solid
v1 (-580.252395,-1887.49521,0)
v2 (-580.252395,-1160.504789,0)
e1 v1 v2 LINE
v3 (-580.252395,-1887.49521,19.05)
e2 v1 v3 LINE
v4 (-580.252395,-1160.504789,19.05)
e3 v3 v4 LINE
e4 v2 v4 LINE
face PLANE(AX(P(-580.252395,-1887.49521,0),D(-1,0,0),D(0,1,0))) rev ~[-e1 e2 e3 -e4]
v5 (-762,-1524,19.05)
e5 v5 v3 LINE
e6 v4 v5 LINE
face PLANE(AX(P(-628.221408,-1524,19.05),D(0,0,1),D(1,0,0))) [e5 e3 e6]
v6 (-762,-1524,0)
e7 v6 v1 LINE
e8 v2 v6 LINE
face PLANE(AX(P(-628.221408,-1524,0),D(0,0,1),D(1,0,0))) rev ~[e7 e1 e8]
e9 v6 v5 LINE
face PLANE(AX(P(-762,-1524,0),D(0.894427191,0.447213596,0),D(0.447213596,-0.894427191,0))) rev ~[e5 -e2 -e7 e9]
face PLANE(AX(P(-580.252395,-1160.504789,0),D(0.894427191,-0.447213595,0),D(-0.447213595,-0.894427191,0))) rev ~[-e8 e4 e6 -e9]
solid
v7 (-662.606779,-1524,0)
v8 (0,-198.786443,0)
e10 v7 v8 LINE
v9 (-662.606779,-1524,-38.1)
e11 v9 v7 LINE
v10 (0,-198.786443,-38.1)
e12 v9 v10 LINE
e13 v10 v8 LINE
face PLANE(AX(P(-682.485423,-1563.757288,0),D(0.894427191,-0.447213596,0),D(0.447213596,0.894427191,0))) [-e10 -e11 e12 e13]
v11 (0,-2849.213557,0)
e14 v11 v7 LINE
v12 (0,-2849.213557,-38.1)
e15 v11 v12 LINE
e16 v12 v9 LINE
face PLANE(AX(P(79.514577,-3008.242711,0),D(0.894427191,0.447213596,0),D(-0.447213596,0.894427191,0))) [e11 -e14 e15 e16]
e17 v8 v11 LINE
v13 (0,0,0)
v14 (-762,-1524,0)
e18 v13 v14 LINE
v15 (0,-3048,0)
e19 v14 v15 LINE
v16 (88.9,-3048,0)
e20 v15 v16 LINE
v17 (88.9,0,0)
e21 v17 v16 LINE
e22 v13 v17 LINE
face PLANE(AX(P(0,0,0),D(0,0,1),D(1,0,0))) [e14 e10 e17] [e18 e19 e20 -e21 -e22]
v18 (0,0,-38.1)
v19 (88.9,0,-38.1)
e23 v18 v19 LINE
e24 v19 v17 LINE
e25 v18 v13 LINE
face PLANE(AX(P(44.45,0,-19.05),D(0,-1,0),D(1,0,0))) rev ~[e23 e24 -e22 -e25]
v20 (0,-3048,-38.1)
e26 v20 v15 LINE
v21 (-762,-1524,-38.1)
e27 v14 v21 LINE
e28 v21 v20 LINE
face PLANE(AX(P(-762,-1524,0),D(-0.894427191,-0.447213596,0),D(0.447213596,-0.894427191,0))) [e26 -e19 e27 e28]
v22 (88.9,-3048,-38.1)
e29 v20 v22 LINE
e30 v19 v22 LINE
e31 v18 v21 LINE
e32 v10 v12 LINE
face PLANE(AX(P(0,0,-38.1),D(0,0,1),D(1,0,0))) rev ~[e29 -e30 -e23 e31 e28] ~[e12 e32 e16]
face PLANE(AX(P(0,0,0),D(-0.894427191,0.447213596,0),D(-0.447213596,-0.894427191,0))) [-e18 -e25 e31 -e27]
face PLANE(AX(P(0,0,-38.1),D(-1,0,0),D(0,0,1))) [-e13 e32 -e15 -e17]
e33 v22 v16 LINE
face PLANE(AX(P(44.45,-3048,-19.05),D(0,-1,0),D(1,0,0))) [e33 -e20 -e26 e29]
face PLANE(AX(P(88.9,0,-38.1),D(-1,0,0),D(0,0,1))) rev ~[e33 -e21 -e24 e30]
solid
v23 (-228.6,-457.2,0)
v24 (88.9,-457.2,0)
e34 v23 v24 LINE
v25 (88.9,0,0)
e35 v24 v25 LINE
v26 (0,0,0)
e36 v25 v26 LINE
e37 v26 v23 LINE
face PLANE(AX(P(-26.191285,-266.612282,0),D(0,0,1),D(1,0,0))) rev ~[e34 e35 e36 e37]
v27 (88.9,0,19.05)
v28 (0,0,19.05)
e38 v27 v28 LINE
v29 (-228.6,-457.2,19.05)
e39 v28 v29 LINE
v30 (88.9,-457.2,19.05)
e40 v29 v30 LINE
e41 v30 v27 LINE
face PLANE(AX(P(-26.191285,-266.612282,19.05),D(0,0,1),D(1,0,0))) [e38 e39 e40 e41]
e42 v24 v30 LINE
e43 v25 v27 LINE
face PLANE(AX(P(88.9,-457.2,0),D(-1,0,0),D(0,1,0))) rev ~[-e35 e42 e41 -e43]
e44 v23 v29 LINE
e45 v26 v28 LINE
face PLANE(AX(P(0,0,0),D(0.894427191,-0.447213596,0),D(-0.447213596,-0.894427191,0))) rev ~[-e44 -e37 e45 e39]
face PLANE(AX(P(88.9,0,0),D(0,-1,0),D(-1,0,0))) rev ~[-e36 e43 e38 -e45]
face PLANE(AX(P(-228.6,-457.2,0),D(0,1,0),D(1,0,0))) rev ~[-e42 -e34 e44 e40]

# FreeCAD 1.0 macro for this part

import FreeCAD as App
import Part
import Sketcher
from FreeCAD import Vector
Q = App.Units.Quantity


def add_polygon(sketch, points):
    """Adds a closed chain of lines whose ends are joined by coincident constraints."""
    first, n = sketch.GeometryCount, len(points)
    for a, b in zip(points, points[1:] + points[:1]):
        sketch.addGeometry(Part.LineSegment(App.Vector(*a, 0), App.Vector(*b, 0)), False)
    for i in range(n):
        sketch.addConstraint(Sketcher.Constraint("Coincident", first + i, 2, first + (i + 1) % n, 1))

doc = App.newDocument("Part")
params = doc.addObject("Spreadsheet::Sheet", "Params")
for row, (alias, value) in enumerate([
    ("sketch1_width", "3.5 in"),
    ("sketch1_height", "1.5 in"),
    ("pad1_length", "120 in"),
    ("sketch2_length", "3.5 in"),
    ("pad2_length", "1.5 in"),
    ("sketch3_length", "3.5 in"),
    ("pad3_length", "1.5 in"),
    ("sketch4_height", "18 in"),
    ("sketch4_width", "12.5 in"),
    ("sketch4_width2", "3.5 in"),
    ("pad4_length", "0.75 in"),
    ("sketch5_length", "16 in"),
    ("pad5_length", "0.75 in"),
], start=1):
    params.set(f"A{row}", alias)
    params.set(f"B{row}", "=" + value)
    params.setAlias(f"B{row}", alias)

body = doc.addObject("PartDesign::Body", "Body")

sketch1 = doc.addObject("Sketcher::SketchObject", "Sketch")
body.addObject(sketch1)
sketch1.AttachmentSupport = (doc.XZ_Plane, [""])
sketch1.MapMode = "FlatFace"
add_polygon(sketch1, [(0, 0), (0, -38.1), (88.9, -38.1), (88.9, 0)])
sketch1.addConstraint([
    Sketcher.Constraint("Vertical", 0),
    Sketcher.Constraint("Horizontal", 1),
    Sketcher.Constraint("Vertical", 2),
    Sketcher.Constraint("Horizontal", 3),
    Sketcher.Constraint("Coincident", 3, 2, -1, 1),
    Sketcher.Constraint("DistanceX", 1, 1, 1, 2, Q("3.5 in")),
    Sketcher.Constraint("DistanceY", 0, 2, 0, 1, Q("1.5 in")),
])
sketch1.setExpression("Constraints[9]", "Params.sketch1_width")
sketch1.setExpression("Constraints[10]", "Params.sketch1_height")
pad1 = doc.addObject("PartDesign::Pad", "Pad")
body.addObject(pad1)
pad1.Profile = sketch1
pad1.setExpression("Length", "Params.pad1_length")

sketch2 = doc.addObject("Sketcher::SketchObject", "Sketch001")
body.addObject(sketch2)
sketch2.AttachmentSupport = (doc.XY_Plane, [""])
sketch2.MapMode = "FlatFace"
add_polygon(sketch2, [(79.514577, -39.757289), (0, 0), (-762, -1524), (-682.485423, -1563.757288)])
sketch2.addConstraint([
    Sketcher.Constraint("Coincident", 0, 2, -1, 1),
    Sketcher.Constraint("Perpendicular", 0, 1),
    Sketcher.Constraint("Perpendicular", 1, 2),
    Sketcher.Constraint("Perpendicular", 2, 3),
    Sketcher.Constraint("DistanceX", 1, 2, -1, 1, Q("30 in")),
    Sketcher.Constraint("DistanceY", 1, 2, -1, 1, Q("60 in")),
    Sketcher.Constraint("Distance", 0, Q("3.5 in")),
])
sketch2.setExpression("Constraints[10]", "Params.sketch2_length")
pad2 = doc.addObject("PartDesign::Pad", "Pad001")
body.addObject(pad2)
pad2.Profile = sketch2
pad2.setExpression("Length", "Params.pad2_length")
pad2.Reversed = True

sketch3 = doc.addObject("Sketcher::SketchObject", "Sketch002")
body.addObject(sketch3)
sketch3.AttachmentSupport = (doc.XY_Plane, [""])
sketch3.MapMode = "FlatFace"
add_polygon(sketch3, [(-682.485423, -1484.242711), (-762, -1524), (0, -3048), (79.514577, -3008.242711)])
sketch3.addConstraint([
    Sketcher.Constraint("PointOnObject", 1, 2, -2),
    Sketcher.Constraint("Perpendicular", 0, 1),
    Sketcher.Constraint("Perpendicular", 1, 2),
    Sketcher.Constraint("Perpendicular", 2, 3),
    Sketcher.Constraint("DistanceX", 0, 2, -1, 1, Q("30 in")),
    Sketcher.Constraint("DistanceY", 0, 2, -1, 1, Q("60 in")),
    Sketcher.Constraint("DistanceY", 1, 2, -1, 1, Q("120 in")),
    Sketcher.Constraint("Distance", 0, Q("3.5 in")),
])
sketch3.setExpression("Constraints[11]", "Params.sketch3_length")
pad3 = doc.addObject("PartDesign::Pad", "Pad002")
body.addObject(pad3)
pad3.Profile = sketch3
pad3.setExpression("Length", "Params.pad3_length")
pad3.Reversed = True
body2 = doc.addObject("PartDesign::Body", "Body001")

sketch4 = doc.addObject("Sketcher::SketchObject", "Sketch003")
body2.addObject(sketch4)
sketch4.AttachmentSupport = (doc.getObject("XY_Plane001"), [""])
sketch4.MapMode = "FlatFace"
add_polygon(sketch4, [(-228.6, -457.2), (88.9, -457.2), (88.9, 0), (0, 0)])
sketch4.addConstraint([
    Sketcher.Constraint("Horizontal", 0),
    Sketcher.Constraint("Vertical", 1),
    Sketcher.Constraint("Horizontal", 2),
    Sketcher.Constraint("Coincident", 2, 2, -1, 1),
    Sketcher.Constraint("DistanceY", 1, 1, 1, 2, Q("18 in")),
    Sketcher.Constraint("DistanceX", 0, 1, 0, 2, Q("12.5 in")),
    Sketcher.Constraint("DistanceX", 2, 2, 2, 1, Q("3.5 in")),
])
sketch4.setExpression("Constraints[8]", "Params.sketch4_height")
sketch4.setExpression("Constraints[9]", "Params.sketch4_width")
sketch4.setExpression("Constraints[10]", "Params.sketch4_width2")
pad4 = doc.addObject("PartDesign::Pad", "Pad003")
body2.addObject(pad4)
pad4.Profile = sketch4
pad4.setExpression("Length", "Params.pad4_length")
body3 = doc.addObject("PartDesign::Body", "Body002")

sketch5 = doc.addObject("Sketcher::SketchObject", "Sketch004")
body3.addObject(sketch5)
sketch5.AttachmentSupport = (doc.getObject("XY_Plane002"), [""])
sketch5.MapMode = "FlatFace"
add_polygon(sketch5, [(-580.252395, -1160.504789), (-762, -1524), (-580.252395, -1887.49521)])
sketch5.addConstraint([
    Sketcher.Constraint("Vertical", 2),
    Sketcher.Constraint("Equal", 0, 1),
    Sketcher.Constraint("Distance", 0, Q("16 in")),
    Sketcher.Constraint("DistanceX", 0, 2, -1, 1, Q("30 in")),
    Sketcher.Constraint("DistanceY", 0, 2, -1, 1, Q("60 in")),
    Sketcher.Constraint("DistanceY", 2, 1, 2, 2, Q("726.990421 mm")),
])
sketch5.setExpression("Constraints[5]", "Params.sketch5_length")
pad5 = doc.addObject("PartDesign::Pad", "Pad004")
body3.addObject(pad5)
pad5.Profile = sketch5
pad5.setExpression("Length", "Params.pad5_length")

doc.recompute()
